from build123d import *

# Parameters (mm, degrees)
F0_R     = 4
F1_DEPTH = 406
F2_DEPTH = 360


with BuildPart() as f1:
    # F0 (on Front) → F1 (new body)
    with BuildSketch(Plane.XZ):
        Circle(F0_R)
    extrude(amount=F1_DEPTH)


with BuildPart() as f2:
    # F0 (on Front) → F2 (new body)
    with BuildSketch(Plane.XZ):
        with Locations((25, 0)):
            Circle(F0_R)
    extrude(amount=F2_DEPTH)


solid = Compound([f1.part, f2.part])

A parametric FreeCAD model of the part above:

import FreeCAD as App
import Part
import Sketcher

V = App.Vector
Q = App.Units.Quantity

doc = App.newDocument("Part")
body = doc.addObject("PartDesign::Body", "Body")

# Sketch on XZ plane
sketch1 = body.newObject("Sketcher::SketchObject", "Sketch")
sketch1.AttachmentSupport = (doc.getObject("XZ_Plane"), [""])
sketch1.MapMode = "FlatFace"
sketch1.addGeometry(Part.Circle(V(0, 0, 0), V(0, 0, 1), 4), False)
sketch1.addConstraint([
    Sketcher.Constraint("Coincident", 0, 3, -1, 1),
    Sketcher.Constraint("Diameter", 0, Q("8 mm")),
])
pad1 = body.newObject("PartDesign::Pad", "Pad")
pad1.Profile = sketch1
pad1.Length = 406
body2 = doc.addObject("PartDesign::Body", "Body001")

# Sketch on XZ plane
sketch2 = body2.newObject("Sketcher::SketchObject", "Sketch001")
sketch2.AttachmentSupport = (doc.getObject("XZ_Plane001"), [""])
sketch2.MapMode = "FlatFace"
sketch2.addGeometry(Part.Circle(V(25, 0, 0), V(0, 0, 1), 4), False)
sketch2.addConstraint([
    Sketcher.Constraint("PointOnObject", 0, 3, -1),
    Sketcher.Constraint("Diameter", 0, Q("8 mm")),
    Sketcher.Constraint("DistanceX", -1, 1, 0, 3, Q("25 mm")),
])
pad2 = body2.newObject("PartDesign::Pad", "Pad001")
pad2.Profile = sketch2
pad2.Length = 360

doc.recompute()
